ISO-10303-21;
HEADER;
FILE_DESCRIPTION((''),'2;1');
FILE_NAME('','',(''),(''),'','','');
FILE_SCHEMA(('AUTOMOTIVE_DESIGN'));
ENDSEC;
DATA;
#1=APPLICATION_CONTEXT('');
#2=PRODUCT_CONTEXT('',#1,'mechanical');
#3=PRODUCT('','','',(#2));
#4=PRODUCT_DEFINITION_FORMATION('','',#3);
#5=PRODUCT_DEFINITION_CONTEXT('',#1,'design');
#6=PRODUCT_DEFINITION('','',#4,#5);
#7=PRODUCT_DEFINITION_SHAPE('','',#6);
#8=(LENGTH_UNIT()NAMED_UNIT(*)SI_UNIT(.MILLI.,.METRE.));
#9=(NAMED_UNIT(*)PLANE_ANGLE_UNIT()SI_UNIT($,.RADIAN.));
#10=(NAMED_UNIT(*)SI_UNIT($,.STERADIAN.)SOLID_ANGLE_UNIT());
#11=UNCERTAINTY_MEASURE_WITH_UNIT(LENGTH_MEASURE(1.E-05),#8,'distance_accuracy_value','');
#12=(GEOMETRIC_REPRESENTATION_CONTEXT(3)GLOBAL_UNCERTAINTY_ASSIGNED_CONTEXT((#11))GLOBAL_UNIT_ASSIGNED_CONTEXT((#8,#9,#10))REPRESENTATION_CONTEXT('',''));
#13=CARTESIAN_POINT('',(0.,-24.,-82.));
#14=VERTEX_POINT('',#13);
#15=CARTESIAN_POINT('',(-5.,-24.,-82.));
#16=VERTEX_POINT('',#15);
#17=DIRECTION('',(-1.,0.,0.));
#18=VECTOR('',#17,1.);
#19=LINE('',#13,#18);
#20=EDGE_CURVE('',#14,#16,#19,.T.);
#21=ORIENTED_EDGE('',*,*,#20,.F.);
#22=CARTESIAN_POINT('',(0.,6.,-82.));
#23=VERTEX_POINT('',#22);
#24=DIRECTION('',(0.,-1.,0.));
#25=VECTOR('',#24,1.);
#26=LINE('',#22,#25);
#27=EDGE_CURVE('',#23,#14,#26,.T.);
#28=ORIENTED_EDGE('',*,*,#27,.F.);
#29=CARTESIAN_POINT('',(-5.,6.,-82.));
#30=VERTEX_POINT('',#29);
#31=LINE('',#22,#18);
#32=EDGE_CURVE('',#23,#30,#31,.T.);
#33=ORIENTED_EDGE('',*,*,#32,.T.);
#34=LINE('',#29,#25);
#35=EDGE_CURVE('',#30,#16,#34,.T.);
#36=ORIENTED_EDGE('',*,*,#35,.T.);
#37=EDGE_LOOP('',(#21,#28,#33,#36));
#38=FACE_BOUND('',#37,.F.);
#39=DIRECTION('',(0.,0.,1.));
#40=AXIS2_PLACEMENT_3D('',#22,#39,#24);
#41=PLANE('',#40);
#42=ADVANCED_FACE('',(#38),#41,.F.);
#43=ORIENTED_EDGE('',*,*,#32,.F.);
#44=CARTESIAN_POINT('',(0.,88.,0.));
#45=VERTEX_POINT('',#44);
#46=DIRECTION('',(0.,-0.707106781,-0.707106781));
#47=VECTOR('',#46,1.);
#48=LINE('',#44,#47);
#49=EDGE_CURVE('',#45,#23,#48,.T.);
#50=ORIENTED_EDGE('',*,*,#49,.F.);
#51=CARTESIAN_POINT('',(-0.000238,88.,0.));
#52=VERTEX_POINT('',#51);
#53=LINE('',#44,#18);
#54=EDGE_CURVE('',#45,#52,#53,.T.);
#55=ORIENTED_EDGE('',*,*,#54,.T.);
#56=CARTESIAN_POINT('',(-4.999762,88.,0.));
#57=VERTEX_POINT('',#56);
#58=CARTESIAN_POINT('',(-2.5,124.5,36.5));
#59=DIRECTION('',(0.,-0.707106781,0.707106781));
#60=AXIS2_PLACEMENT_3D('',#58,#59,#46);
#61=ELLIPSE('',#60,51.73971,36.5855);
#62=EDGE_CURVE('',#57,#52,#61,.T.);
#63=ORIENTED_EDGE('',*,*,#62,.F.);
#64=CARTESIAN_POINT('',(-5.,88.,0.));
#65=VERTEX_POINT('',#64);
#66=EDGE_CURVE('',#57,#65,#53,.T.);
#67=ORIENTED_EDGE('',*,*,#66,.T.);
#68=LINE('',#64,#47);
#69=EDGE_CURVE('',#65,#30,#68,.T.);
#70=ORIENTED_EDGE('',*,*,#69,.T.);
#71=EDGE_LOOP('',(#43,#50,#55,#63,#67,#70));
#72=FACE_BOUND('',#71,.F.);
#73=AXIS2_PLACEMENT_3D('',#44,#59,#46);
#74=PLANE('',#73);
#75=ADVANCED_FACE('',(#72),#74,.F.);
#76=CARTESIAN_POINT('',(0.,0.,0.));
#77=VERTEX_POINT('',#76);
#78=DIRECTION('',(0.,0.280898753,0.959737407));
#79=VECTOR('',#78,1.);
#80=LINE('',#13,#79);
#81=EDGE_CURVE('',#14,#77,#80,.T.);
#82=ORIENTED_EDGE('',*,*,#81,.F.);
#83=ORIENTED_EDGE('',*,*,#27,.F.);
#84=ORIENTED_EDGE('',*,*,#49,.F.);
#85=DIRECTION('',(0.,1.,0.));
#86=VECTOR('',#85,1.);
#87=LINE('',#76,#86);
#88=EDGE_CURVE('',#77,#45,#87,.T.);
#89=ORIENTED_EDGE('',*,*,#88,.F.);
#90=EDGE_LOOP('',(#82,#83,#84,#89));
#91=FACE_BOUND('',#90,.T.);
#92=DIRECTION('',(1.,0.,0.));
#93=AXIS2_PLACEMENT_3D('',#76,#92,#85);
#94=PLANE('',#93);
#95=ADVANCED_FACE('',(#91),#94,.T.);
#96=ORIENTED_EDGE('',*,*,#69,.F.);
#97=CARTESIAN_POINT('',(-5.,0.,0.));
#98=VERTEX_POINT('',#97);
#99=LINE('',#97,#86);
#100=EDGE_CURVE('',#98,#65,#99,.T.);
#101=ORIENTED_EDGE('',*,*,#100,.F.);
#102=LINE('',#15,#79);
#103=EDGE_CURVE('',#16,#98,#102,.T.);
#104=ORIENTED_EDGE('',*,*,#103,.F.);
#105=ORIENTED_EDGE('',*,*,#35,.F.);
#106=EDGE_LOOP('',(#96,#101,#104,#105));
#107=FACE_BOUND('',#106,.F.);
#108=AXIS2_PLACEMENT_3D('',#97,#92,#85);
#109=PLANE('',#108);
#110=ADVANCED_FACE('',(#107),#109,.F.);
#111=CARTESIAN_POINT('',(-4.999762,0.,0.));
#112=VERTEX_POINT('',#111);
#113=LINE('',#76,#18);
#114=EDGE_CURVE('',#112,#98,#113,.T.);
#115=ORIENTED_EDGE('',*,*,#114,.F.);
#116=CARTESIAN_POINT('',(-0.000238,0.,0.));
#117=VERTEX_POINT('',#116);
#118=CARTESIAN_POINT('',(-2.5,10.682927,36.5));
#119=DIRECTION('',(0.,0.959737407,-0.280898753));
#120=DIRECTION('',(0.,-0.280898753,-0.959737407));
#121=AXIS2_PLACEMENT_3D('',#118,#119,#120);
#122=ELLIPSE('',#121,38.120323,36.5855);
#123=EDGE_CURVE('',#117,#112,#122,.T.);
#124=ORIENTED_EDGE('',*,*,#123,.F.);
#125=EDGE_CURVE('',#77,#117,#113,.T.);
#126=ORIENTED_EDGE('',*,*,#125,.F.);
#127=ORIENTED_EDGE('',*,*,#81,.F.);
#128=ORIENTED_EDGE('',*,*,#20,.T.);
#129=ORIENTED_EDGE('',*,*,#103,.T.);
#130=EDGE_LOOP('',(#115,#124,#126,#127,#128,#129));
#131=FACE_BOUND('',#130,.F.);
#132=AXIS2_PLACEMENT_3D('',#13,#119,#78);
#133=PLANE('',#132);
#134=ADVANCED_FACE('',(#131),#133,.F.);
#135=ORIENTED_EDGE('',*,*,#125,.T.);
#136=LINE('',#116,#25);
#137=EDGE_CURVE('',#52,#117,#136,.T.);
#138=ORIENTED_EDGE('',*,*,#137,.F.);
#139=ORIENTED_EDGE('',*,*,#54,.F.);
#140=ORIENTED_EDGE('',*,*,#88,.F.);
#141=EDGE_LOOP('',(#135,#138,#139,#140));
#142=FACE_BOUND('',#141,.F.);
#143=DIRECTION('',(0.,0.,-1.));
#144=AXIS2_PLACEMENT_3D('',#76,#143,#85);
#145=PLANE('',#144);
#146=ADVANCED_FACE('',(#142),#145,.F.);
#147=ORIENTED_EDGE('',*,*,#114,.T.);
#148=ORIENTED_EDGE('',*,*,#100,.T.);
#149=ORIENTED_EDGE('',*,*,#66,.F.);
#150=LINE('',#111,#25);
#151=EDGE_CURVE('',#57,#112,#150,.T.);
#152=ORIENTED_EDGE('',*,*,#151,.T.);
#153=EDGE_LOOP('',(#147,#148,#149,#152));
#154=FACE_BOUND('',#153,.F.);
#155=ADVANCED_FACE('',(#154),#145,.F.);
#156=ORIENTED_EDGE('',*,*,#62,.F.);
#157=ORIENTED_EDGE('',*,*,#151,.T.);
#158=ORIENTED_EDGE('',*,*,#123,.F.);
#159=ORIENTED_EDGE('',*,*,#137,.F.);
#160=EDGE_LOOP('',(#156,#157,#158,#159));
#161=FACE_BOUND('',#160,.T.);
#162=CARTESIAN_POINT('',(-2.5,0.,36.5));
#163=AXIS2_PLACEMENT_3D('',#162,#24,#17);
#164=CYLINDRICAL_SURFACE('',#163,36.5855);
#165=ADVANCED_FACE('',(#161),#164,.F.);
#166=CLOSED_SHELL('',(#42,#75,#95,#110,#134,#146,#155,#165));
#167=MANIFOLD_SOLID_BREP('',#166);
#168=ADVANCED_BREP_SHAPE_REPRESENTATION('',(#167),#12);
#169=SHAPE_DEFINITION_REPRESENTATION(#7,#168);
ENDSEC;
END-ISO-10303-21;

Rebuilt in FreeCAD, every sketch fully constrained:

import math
import FreeCAD as App
import Part
import Sketcher

V = App.Vector
Q = App.Units.Quantity

doc = App.newDocument("Part")
body = doc.addObject("PartDesign::Body", "Body")

# Sketch on YZ plane
sketch1 = body.newObject("Sketcher::SketchObject", "Sketch")
sketch1.AttachmentSupport = (doc.getObject("YZ_Plane"), [""])
sketch1.MapMode = "FlatFace"
sketch1.addGeometry(Part.LineSegment(V(88, 0, 0), V(0, 0, 0)), False)
sketch1.addGeometry(Part.LineSegment(V(0, 0, 0), V(-24, -82, 0)), False)
sketch1.addGeometry(Part.LineSegment(V(-24, -82, 0), V(6, -82, 0)), False)
sketch1.addGeometry(Part.LineSegment(V(6, -82, 0), V(88, 0, 0)), False)
sketch1.addConstraint(Sketcher.Constraint("Coincident", 0, 2, 1, 1))
sketch1.addConstraint(Sketcher.Constraint("Coincident", 1, 2, 2, 1))
sketch1.addConstraint(Sketcher.Constraint("Coincident", 2, 2, 3, 1))
sketch1.addConstraint(Sketcher.Constraint("Coincident", 3, 2, 0, 1))
sketch1.addConstraint(Sketcher.Constraint("Horizontal", 0))
sketch1.addConstraint(Sketcher.Constraint("Horizontal", 2))
sketch1.addConstraint(Sketcher.Constraint("Coincident", 0, 2, -1, 1))
sketch1.addConstraint(Sketcher.Constraint("DistanceX", 0, 2, 0, 1, Q("88 mm")))
sketch1.addConstraint(Sketcher.Constraint("DistanceX", 2, 1, 2, 2, Q("30 mm")))
sketch1.addConstraint(Sketcher.Constraint("Angle", 3, Q("45 deg")))
sketch1.addConstraint(Sketcher.Constraint("DistanceX", 1, 2, -1, 1, Q("24 mm")))
pad1 = body.newObject("PartDesign::Pad", "Pad")
pad1.Profile = sketch1
pad1.Length = 5
pad1.Reversed = True

# Sketch on XZ plane
sketch2 = body.newObject("Sketcher::SketchObject", "Sketch001")
sketch2.AttachmentSupport = (doc.getObject("XZ_Plane"), [""])
sketch2.MapMode = "FlatFace"
sketch2.addGeometry(Part.LineSegment(V(-5, 0, 0), V(0, 0, 0)), False)
sketch2.addGeometry(Part.ArcOfCircle(Part.Circle(V(-2.5, 36.5, 0), V(0, 0, 1), 36.6), math.radians(-93.92), math.radians(-86.08)), False)
sketch2.addConstraint(Sketcher.Constraint("Coincident", 0, 1, 1, 1))
sketch2.addConstraint(Sketcher.Constraint("Coincident", 1, 2, 0, 2))
sketch2.addConstraint(Sketcher.Constraint("Horizontal", 0))
sketch2.addConstraint(Sketcher.Constraint("Coincident", 1, 2, -1, 1))
sketch2.addConstraint(Sketcher.Constraint("DistanceX", 0, 1, 0, 2, Q("5 mm")))
sketch2.addConstraint(Sketcher.Constraint("DistanceY", -1, 1, 1, 3, Q("36.5 mm")))
pocket1 = body.newObject("PartDesign::Pocket", "Pocket")
pocket1.Profile = sketch2
pocket1.Length = 197.25
pocket1.Midplane = True

doc.recompute()
